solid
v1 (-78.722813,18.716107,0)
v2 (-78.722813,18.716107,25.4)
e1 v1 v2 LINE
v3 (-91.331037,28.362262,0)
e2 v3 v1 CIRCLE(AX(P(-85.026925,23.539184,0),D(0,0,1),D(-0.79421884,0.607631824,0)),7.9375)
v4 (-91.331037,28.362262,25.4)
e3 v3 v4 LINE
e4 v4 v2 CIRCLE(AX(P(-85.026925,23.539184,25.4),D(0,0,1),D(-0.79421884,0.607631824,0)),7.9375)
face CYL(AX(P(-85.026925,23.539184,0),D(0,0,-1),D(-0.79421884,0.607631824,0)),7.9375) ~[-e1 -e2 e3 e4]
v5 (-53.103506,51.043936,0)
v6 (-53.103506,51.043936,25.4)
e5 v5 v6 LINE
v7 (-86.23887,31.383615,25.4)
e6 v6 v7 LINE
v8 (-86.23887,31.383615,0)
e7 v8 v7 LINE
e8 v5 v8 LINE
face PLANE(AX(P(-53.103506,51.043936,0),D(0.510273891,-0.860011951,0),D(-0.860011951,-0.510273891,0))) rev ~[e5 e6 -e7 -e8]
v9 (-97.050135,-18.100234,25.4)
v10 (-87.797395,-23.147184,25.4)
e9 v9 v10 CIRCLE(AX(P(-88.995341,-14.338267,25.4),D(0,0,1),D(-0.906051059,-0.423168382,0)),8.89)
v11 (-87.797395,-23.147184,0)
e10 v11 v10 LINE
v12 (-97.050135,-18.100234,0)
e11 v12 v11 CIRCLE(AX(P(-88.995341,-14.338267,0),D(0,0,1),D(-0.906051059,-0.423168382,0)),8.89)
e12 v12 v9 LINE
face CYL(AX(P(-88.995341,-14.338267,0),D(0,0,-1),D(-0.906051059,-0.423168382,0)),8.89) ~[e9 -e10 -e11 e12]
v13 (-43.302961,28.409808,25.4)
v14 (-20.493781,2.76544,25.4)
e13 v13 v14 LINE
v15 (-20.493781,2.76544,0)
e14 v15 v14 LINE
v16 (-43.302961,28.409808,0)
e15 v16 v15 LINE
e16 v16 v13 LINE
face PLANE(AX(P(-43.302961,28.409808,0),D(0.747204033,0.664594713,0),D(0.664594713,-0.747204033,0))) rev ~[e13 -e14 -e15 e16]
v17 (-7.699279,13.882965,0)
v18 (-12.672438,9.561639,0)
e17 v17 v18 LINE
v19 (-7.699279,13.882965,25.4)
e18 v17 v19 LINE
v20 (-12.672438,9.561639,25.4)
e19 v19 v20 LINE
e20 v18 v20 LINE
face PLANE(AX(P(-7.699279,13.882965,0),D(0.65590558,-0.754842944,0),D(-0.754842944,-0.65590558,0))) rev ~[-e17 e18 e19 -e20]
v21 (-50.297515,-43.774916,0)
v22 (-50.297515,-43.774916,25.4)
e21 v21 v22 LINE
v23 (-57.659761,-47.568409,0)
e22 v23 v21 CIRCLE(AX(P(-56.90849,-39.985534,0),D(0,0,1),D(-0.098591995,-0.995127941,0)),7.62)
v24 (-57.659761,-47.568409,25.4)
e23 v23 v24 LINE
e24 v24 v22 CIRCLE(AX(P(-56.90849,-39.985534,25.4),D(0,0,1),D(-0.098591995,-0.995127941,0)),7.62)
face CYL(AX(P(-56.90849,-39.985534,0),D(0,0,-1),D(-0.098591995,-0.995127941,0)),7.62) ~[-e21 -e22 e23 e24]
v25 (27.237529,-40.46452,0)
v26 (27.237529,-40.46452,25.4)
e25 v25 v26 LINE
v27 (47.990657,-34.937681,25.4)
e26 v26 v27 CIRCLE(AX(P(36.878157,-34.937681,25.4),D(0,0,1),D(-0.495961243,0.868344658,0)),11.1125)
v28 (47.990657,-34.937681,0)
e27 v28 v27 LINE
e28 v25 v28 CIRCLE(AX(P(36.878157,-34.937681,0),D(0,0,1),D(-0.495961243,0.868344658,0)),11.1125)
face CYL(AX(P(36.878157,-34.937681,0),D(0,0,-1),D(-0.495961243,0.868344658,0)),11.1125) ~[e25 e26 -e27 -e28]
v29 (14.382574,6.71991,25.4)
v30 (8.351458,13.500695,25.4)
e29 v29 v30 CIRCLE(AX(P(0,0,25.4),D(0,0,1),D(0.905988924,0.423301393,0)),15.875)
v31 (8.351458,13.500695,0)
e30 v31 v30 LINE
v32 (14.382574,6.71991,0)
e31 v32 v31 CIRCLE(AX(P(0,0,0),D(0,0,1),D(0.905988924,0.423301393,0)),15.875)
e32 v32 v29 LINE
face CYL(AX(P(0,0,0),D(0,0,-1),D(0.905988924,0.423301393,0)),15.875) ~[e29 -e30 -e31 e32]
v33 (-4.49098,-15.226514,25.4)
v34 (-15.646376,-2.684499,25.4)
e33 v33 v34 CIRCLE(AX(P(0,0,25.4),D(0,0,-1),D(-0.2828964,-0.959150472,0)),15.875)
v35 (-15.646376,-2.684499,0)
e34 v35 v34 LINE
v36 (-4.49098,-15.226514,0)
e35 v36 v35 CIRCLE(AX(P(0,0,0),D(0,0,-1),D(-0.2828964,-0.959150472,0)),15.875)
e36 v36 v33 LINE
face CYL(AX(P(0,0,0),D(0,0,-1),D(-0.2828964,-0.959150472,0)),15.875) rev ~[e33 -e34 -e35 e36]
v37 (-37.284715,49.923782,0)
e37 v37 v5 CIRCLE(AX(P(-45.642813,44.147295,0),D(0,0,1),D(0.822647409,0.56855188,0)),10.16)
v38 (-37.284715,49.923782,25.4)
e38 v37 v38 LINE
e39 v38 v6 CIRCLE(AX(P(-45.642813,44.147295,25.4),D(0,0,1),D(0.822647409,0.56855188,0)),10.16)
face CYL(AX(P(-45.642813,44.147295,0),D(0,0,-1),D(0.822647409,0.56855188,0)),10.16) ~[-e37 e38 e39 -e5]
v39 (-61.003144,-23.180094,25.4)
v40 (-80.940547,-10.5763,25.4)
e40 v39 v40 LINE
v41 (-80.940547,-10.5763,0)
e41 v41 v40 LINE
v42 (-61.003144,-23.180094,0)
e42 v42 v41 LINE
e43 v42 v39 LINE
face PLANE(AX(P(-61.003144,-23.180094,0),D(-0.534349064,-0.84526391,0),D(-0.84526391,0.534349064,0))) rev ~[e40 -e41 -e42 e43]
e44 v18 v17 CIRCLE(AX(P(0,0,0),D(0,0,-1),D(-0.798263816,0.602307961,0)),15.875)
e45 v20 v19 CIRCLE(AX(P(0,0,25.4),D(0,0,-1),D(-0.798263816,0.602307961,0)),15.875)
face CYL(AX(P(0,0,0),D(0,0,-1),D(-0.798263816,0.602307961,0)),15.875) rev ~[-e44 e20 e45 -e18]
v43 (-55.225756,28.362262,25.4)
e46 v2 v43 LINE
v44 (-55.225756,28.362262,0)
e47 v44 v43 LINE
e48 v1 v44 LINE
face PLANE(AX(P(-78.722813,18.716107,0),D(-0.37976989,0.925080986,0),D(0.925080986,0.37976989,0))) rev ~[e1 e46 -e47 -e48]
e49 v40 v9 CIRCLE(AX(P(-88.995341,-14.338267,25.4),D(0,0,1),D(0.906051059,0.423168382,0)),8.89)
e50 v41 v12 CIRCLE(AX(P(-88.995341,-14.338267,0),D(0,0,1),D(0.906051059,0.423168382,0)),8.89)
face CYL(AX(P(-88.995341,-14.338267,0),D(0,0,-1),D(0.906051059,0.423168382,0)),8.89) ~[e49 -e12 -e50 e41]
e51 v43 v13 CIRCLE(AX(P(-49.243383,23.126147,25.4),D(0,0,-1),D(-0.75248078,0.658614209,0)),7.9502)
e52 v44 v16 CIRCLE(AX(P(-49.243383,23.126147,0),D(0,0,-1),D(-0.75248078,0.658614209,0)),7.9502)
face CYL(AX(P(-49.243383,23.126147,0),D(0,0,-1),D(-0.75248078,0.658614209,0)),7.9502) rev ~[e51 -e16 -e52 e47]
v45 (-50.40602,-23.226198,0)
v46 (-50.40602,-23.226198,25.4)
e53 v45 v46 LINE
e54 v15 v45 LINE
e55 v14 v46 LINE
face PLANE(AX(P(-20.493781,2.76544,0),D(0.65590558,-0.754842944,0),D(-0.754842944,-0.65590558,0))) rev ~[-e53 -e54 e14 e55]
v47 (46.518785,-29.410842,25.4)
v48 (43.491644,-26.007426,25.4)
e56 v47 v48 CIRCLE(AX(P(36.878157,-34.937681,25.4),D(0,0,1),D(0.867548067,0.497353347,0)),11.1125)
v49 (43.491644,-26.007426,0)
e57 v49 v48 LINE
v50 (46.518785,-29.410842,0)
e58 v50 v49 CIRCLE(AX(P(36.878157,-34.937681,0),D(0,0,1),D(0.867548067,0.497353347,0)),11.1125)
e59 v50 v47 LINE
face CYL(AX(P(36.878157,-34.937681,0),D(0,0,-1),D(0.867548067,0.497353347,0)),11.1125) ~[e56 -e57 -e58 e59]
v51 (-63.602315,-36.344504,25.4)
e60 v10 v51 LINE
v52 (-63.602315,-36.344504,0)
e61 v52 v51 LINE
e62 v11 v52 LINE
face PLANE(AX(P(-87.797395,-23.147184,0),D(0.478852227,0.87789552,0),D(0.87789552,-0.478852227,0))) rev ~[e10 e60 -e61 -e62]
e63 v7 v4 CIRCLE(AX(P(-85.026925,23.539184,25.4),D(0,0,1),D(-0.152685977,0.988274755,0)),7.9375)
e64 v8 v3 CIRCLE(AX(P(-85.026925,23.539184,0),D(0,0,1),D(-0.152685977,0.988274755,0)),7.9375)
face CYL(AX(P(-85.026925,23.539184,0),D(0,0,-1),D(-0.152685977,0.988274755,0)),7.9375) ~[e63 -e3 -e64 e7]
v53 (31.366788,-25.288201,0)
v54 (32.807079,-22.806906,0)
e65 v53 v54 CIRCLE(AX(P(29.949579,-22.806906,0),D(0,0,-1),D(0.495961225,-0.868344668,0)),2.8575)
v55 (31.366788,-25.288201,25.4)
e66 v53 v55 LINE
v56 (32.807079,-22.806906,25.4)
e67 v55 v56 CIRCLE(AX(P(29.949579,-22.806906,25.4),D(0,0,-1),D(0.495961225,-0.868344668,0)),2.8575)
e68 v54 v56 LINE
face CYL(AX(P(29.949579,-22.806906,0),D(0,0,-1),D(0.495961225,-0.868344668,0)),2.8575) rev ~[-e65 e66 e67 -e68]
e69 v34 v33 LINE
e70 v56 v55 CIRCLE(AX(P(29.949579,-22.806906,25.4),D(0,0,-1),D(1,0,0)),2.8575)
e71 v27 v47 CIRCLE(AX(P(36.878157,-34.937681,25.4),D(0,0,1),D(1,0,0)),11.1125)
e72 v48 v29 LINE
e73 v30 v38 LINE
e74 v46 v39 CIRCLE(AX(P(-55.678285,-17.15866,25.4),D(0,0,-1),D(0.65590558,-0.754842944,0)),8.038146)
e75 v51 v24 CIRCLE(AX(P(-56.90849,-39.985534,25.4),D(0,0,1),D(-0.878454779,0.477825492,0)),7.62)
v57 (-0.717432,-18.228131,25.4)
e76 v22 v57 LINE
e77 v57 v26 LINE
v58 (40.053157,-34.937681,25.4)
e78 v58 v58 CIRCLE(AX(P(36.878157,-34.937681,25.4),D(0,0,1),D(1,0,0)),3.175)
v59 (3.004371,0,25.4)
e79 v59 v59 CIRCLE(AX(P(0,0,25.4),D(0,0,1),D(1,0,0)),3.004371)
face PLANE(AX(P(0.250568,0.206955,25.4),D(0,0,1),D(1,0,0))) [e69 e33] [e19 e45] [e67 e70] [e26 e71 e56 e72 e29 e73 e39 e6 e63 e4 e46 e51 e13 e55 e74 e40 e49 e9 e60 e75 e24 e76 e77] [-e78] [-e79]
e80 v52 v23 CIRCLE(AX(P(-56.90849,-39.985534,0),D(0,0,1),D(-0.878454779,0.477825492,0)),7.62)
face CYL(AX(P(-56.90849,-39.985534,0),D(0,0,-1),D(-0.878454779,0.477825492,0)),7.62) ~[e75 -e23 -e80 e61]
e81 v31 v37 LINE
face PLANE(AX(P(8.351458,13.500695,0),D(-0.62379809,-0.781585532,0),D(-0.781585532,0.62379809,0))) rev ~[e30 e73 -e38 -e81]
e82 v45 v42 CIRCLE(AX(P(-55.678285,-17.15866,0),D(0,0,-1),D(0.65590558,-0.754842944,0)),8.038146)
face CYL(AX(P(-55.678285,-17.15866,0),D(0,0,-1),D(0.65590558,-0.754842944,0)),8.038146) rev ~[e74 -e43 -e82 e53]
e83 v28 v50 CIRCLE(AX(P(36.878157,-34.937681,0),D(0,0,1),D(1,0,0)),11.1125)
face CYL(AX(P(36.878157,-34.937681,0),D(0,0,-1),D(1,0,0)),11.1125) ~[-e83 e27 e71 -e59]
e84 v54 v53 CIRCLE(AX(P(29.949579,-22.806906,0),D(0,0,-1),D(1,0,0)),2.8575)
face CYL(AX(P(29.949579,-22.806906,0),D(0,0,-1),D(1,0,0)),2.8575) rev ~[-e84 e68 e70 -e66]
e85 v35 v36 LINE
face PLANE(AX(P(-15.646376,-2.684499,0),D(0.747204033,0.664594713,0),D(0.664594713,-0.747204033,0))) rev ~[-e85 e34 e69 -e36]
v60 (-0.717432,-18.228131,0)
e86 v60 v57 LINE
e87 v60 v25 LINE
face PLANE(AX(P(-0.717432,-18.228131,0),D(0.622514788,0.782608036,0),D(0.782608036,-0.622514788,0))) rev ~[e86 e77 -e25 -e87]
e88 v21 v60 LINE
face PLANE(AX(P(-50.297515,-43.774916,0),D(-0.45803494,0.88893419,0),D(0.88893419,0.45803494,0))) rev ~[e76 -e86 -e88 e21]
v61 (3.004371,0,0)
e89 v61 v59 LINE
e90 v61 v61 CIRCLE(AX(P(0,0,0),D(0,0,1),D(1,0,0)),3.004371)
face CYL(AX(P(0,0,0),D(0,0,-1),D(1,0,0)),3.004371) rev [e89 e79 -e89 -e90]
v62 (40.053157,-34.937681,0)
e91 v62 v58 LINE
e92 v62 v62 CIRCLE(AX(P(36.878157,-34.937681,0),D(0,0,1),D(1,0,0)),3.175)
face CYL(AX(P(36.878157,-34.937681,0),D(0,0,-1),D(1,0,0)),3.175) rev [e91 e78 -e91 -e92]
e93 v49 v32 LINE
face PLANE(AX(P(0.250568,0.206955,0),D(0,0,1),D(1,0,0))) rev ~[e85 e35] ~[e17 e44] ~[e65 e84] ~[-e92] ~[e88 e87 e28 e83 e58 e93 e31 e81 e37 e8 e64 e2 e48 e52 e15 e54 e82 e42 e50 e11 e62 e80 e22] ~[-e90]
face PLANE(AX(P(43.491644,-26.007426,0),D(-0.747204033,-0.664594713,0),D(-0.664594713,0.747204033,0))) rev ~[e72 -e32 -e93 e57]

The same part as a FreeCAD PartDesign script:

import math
import FreeCAD as App
import Part
import Sketcher
from FreeCAD import Vector
Q = App.Units.Quantity

doc = App.newDocument("Part")
body = doc.addObject("PartDesign::Body", "Body")

sketch1 = body.newObject("Sketcher::SketchObject", "Sketch")
sketch1.AttachmentSupport = (doc.getObject("XY_Plane"), [""])
sketch1.MapMode = "FlatFace"
sketch1.addGeometry([
    Part.LineSegment(Vector(-50.3, -43.8, 0), Vector(-0.7, -18.2, 0)),
    Part.LineSegment(Vector(-0.7, -18.2, 0), Vector(27.2, -40.5, 0)),
    Part.ArcOfCircle(Part.Circle(Vector(36.9, -34.9, 0), Vector(0, 0, 1), 11.1), math.radians(-150), math.radians(0)),
    Part.ArcOfCircle(Part.Circle(Vector(36.9, -34.9, 0), Vector(0, 0, 1), 11.1), math.radians(0), math.radians(30)),
    Part.ArcOfCircle(Part.Circle(Vector(36.9, -34.9, 0), Vector(0, 0, 1), 11.1), math.radians(30), math.radians(53)),
    Part.LineSegment(Vector(43.5, -26, 0), Vector(14.4, 6.7, 0)),
    Part.ArcOfCircle(Part.Circle(Vector(0, 0, 0), Vector(0, 0, 1), 15.9), math.radians(25), math.radians(58)),
    Part.LineSegment(Vector(8.4, 13.5, 0), Vector(-37.3, 49.9, 0)),
    Part.ArcOfCircle(Part.Circle(Vector(-45.6, 44.1, 0), Vector(0, 0, 1), 10.2), math.radians(35), math.radians(137)),
    Part.LineSegment(Vector(-53.1, 51, 0), Vector(-86.2, 31.4, 0)),
    Part.ArcOfCircle(Part.Circle(Vector(-85, 23.5, 0), Vector(0, 0, 1), 7.9), math.radians(99), math.radians(143)),
    Part.ArcOfCircle(Part.Circle(Vector(-85, 23.5, 0), Vector(0, 0, 1), 7.9), math.radians(143), math.radians(323)),
    Part.LineSegment(Vector(-78.7, 18.7, 0), Vector(-55.2, 28.4, 0)),
    Part.ArcOfCircle(Part.Circle(Vector(-49.2, 23.1, 0), Vector(0, 0, 1), 8), math.radians(42), math.radians(139)),
    Part.LineSegment(Vector(-43.3, 28.4, 0), Vector(-20.5, 2.8, 0)),
    Part.LineSegment(Vector(-20.5, 2.8, 0), Vector(-50.4, -23.2, 0)),
    Part.ArcOfCircle(Part.Circle(Vector(-55.7, -17.2, 0), Vector(0, 0, 1), 8), math.radians(-131), math.radians(-49)),
    Part.LineSegment(Vector(-61, -23.2, 0), Vector(-80.9, -10.6, 0)),
    Part.ArcOfCircle(Part.Circle(Vector(-89, -14.3, 0), Vector(0, 0, 1), 8.9), math.radians(25), math.radians(205)),
    Part.ArcOfCircle(Part.Circle(Vector(-89, -14.3, 0), Vector(0, 0, 1), 8.9), math.radians(-155), math.radians(-82)),
    Part.LineSegment(Vector(-87.8, -23.1, 0), Vector(-63.6, -36.3, 0)),
    Part.ArcOfCircle(Part.Circle(Vector(-56.9, -40, 0), Vector(0, 0, 1), 7.6), math.radians(151), math.radians(264)),
    Part.ArcOfCircle(Part.Circle(Vector(-56.9, -40, 0), Vector(0, 0, 1), 7.6), math.radians(-96), math.radians(-30)),
    Part.Circle(Vector(36.9, -34.9, 0), Vector(0, 0, 1), 3.2),
    Part.ArcOfCircle(Part.Circle(Vector(29.9, -22.8, 0), Vector(0, 0, 1), 2.9), math.radians(-60), math.radians(0)),
    Part.ArcOfCircle(Part.Circle(Vector(29.9, -22.8, 0), Vector(0, 0, 1), 2.9), math.radians(0), math.radians(300)),
    Part.LineSegment(Vector(-15.6, -2.7, 0), Vector(-4.5, -15.2, 0)),
    Part.ArcOfCircle(Part.Circle(Vector(0, 0, 0), Vector(0, 0, 1), 15.9), math.radians(-170), math.radians(-106)),
    Part.Circle(Vector(0, 0, 0), Vector(0, 0, 1), 3),
    Part.LineSegment(Vector(-7.7, 13.9, 0), Vector(-12.7, 9.6, 0)),
    Part.ArcOfCircle(Part.Circle(Vector(0, 0, 0), Vector(0, 0, 1), 15.9), math.radians(119), math.radians(143)),
], False)
sketch1.addConstraint([
    Sketcher.Constraint("Coincident", 0, 2, 1, 1),
    Sketcher.Constraint("Coincident", 1, 2, 2, 1),
    Sketcher.Constraint("Tangent", 2, 2, 3, 1),
    Sketcher.Constraint("Tangent", 3, 2, 4, 1),
    Sketcher.Constraint("Coincident", 4, 2, 5, 1),
    Sketcher.Constraint("Coincident", 5, 2, 6, 1),
    Sketcher.Constraint("Coincident", 6, 2, 7, 1),
    Sketcher.Constraint("Coincident", 7, 2, 8, 1),
    Sketcher.Constraint("Coincident", 8, 2, 9, 1),
    Sketcher.Constraint("Coincident", 9, 2, 10, 1),
    Sketcher.Constraint("Tangent", 10, 2, 11, 1),
    Sketcher.Constraint("Coincident", 11, 2, 12, 1),
    Sketcher.Constraint("Coincident", 12, 2, 13, 2),
    Sketcher.Constraint("Tangent", 13, 1, 14, 1),
    Sketcher.Constraint("Coincident", 14, 2, 15, 1),
    Sketcher.Constraint("Tangent", 15, 2, 16, 2),
    Sketcher.Constraint("Coincident", 16, 1, 17, 1),
    Sketcher.Constraint("Coincident", 17, 2, 18, 1),
    Sketcher.Constraint("Tangent", 18, 2, 19, 1),
    Sketcher.Constraint("Coincident", 19, 2, 20, 1),
    Sketcher.Constraint("Coincident", 20, 2, 21, 1),
    Sketcher.Constraint("Tangent", 21, 2, 22, 1),
    Sketcher.Constraint("Coincident", 22, 2, 0, 1),
    Sketcher.Constraint("Tangent", 24, 1, 25, 2),
    Sketcher.Constraint("Coincident", 25, 1, 24, 2),
    Sketcher.Constraint("Coincident", 26, 1, 27, 1),
    Sketcher.Constraint("Coincident", 27, 2, 26, 2),
    Sketcher.Constraint("Coincident", 29, 1, 30, 1),
    Sketcher.Constraint("Coincident", 30, 2, 29, 2),
    Sketcher.Constraint("Coincident", 6, 3, -1, 1),
    Sketcher.Constraint("Coincident", 27, 3, -1, 1),
    Sketcher.Constraint("Coincident", 28, 3, -1, 1),
    Sketcher.Constraint("Coincident", 30, 3, -1, 1),
    Sketcher.Constraint("Coincident", 4, 3, 2, 3),
    Sketcher.Constraint("Coincident", 23, 3, 2, 3),
    Sketcher.Constraint("Equal", 10, 11),
    Sketcher.Constraint("Equal", 18, 19),
    Sketcher.Constraint("Equal", 21, 22),
    Sketcher.Constraint("Equal", 6, 27),
    Sketcher.Constraint("Equal", 27, 30),
    Sketcher.Constraint("Parallel", 5, 14),
    Sketcher.Constraint("Parallel", 14, 26),
    Sketcher.Constraint("Parallel", 15, 29),
    Sketcher.Constraint("Horizontal", 23, 3, 2, 2),
    Sketcher.Constraint("Horizontal", 10, 2, 12, 2),
    Sketcher.Constraint("Horizontal", 24, 3, 25, 1),
    Sketcher.Constraint("Radius", 8, Q("0.4 in")),
    Sketcher.Constraint("Radius", 21, Q("0.3 in")),
    Sketcher.Constraint("Diameter", 23, Q("0.25 in")),
    Sketcher.Constraint("Radius", 18, Q("0.35 in")),
    Sketcher.Constraint("Distance", 12, Q("1 in")),
    Sketcher.Constraint("Radius", 2, Q("0.4375 in")),
    Sketcher.Constraint("Radius", 6, Q("0.625 in")),
    Sketcher.Constraint("Radius", 10, Q("0.3125 in")),
    Sketcher.Constraint("Radius", 13, Q("0.313 in")),
    Sketcher.Constraint("Angle", 1, Q("-38.500011 deg")),
    Sketcher.Constraint("Radius", 24, Q("0.1125 in")),
    Sketcher.Constraint("Diameter", 28, 6.008742),
    Sketcher.Constraint("Radius", 16, 8.038146),
    Sketcher.Constraint("DistanceY", 17, 2, -1, 1, 10.5763),
    Sketcher.Constraint("DistanceY", 24, 1, -1, 1, 25.288201),
    Sketcher.Constraint("DistanceY", 26, 1, -1, 1, 2.684499),
    Sketcher.Constraint("DistanceX", 20, 2, 22, 2, 13.3048),
    Sketcher.Constraint("DistanceY", 14, 2, 30, 2, 6.796199),
    Sketcher.Constraint("Distance", 0, 55.774751),
    Sketcher.Constraint("Distance", 5, 43.799731),
    Sketcher.Constraint("Distance", 26, 16.785261),
    Sketcher.Constraint("DistanceY", 2, 3, -1, 1, 34.937681),
    Sketcher.Constraint("DistanceY", 16, 3, -1, 1, 17.15866),
    Sketcher.Constraint("DistanceX", 18, 3, -1, 1, 88.995341),
    Sketcher.Constraint("DistanceX", 21, 3, -1, 1, 56.90849),
    Sketcher.Constraint("DistanceX", -1, 1, 24, 3, 29.949579),
    Sketcher.Constraint("DistanceX", 0, 2, -1, 1, 0.717432),
    Sketcher.Constraint("DistanceY", 0, 2, -1, 1, 18.228131),
    Sketcher.Constraint("DistanceX", -1, 1, 1, 2, 27.237529),
    Sketcher.Constraint("DistanceY", 3, 2, -1, 1, 29.410842),
    Sketcher.Constraint("DistanceX", 9, 2, -1, 1, 86.23887),
    Sketcher.Constraint("DistanceY", -1, 1, 10, 2, 28.362262),
    Sketcher.Constraint("DistanceX", 13, 1, -1, 1, 43.302961),
    Sketcher.Constraint("DistanceY", -1, 1, 13, 1, 28.409808),
    Sketcher.Constraint("DistanceX", 14, 2, -1, 1, 20.493781),
    Sketcher.Constraint("DistanceX", 15, 2, -1, 1, 50.40602),
    Sketcher.Constraint("DistanceX", 21, 2, -1, 1, 57.659761),
    Sketcher.Constraint("DistanceY", 21, 2, -1, 1, 47.568409),
    Sketcher.Constraint("DistanceX", 8, 3, 3, 3, 82.52097),
    Sketcher.Constraint("DistanceX", 10, 3, 8, 3, 39.384112),
    Sketcher.Constraint("DistanceY", 10, 3, 8, 3, 20.608111),
    Sketcher.Constraint("DistanceY", 18, 3, 10, 3, 37.877451),
    Sketcher.Constraint("DistanceY", 21, 3, 10, 3, 63.524718),
    Sketcher.Constraint("DistanceX", 11, 3, 7, 2, 47.74221),
    Sketcher.Constraint("DistanceY", 8, 3, 8, 2, 6.896641),
    Sketcher.Constraint("DistanceX", 16, 1, 16, 3, 5.324859),
    Sketcher.Constraint("DistanceX", 18, 2, 16, 1, 36.04699),
    Sketcher.Constraint("DistanceX", 18, 2, 19, 2, 9.25274),
    Sketcher.Constraint("DistanceX", 24, 3, 24, 1, 1.417209),
    Sketcher.Constraint("DistanceY", 6, 2, 29, 1, 0.38227),
])
pad1 = body.newObject("PartDesign::Pad", "Pad")
pad1.Profile = sketch1
pad1.Length = Q("1 in")

doc.recompute()
